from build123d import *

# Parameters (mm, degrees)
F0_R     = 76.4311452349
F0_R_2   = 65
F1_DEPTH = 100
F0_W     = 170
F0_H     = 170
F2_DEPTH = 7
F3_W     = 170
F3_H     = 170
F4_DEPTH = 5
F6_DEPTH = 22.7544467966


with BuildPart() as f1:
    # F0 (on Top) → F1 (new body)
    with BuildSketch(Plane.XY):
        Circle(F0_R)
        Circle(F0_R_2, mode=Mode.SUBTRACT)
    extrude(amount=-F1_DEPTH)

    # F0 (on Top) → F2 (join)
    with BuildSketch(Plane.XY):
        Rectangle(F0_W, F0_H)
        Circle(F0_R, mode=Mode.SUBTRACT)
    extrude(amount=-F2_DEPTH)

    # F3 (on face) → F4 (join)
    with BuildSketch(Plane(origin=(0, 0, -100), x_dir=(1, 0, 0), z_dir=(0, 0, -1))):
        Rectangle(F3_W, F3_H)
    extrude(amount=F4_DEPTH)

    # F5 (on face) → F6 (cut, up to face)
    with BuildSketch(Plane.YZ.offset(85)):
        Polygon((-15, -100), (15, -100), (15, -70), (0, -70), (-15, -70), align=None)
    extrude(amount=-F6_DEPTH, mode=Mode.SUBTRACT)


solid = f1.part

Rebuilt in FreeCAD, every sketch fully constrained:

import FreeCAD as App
import Part
import Sketcher
Q = App.Units.Quantity


def add_polygon(sketch, points):
    """Adds a closed chain of lines whose ends are joined by coincident constraints."""
    first, n = sketch.GeometryCount, len(points)
    for a, b in zip(points, points[1:] + points[:1]):
        sketch.addGeometry(Part.LineSegment(App.Vector(*a, 0), App.Vector(*b, 0)), False)
    for i in range(n):
        sketch.addConstraint(Sketcher.Constraint("Coincident", first + i, 2, first + (i + 1) % n, 1))

doc = App.newDocument("Part")
body = doc.addObject("PartDesign::Body", "Body")

# Sketch on XY plane
sketch1 = doc.addObject("Sketcher::SketchObject", "Sketch")
body.addObject(sketch1)
sketch1.AttachmentSupport = (doc.XY_Plane, [""])
sketch1.MapMode = "FlatFace"
sketch1.addGeometry([
    Part.Circle(App.Vector(0, 0, 0), App.Vector(0, 0, 1), 76.431145),
    Part.Circle(App.Vector(0, 0, 0), App.Vector(0, 0, 1), 65),
], False)
sketch1.addConstraint([
    Sketcher.Constraint("Coincident", 0, 3, -1, 1),
    Sketcher.Constraint("Coincident", 1, 3, -1, 1),
    Sketcher.Constraint("Diameter", 1, Q("130 mm")),
    Sketcher.Constraint("Diameter", 0, Q("152.86229 mm")),
])
pad1 = doc.addObject("PartDesign::Pad", "Pad")
body.addObject(pad1)
pad1.Profile = sketch1
pad1.Length = 100
pad1.Reversed = True

# Sketch on XY plane
sketch2 = doc.addObject("Sketcher::SketchObject", "Sketch001")
body.addObject(sketch2)
sketch2.AttachmentSupport = (doc.XY_Plane, [""])
sketch2.MapMode = "FlatFace"
add_polygon(sketch2, [(-85, 85), (-85, -85), (85, -85), (85, 85)])  # lines 0-3
sketch2.addGeometry(Part.Circle(App.Vector(0, 0, 0), App.Vector(0, 0, 1), 76.431145), False)  # 4
sketch2.addConstraint([
    Sketcher.Constraint("Vertical", 0),
    Sketcher.Constraint("Horizontal", 1),
    Sketcher.Constraint("Vertical", 2),
    Sketcher.Constraint("Horizontal", 3),
    Sketcher.Constraint("Coincident", 4, 3, -1, 1),
    Sketcher.Constraint("Symmetric", 0, 2, 2, 2, -1, 1),
    Sketcher.Constraint("Equal", 3, 0),
    Sketcher.Constraint("DistanceX", 1, 1, 1, 2, Q("170 mm")),
    Sketcher.Constraint("Diameter", 4, Q("152.86229 mm")),
])
pad2 = doc.addObject("PartDesign::Pad", "Pad001")
body.addObject(pad2)
pad2.Profile = sketch2
pad2.Length = 7
pad2.Reversed = True

# Sketch on XY plane
sketch3 = doc.addObject("Sketcher::SketchObject", "Sketch002")
body.addObject(sketch3)
sketch3.AttachmentSupport = (doc.XY_Plane, [""])
sketch3.MapMode = "FlatFace"
sketch3.AttachmentOffset = App.Placement(App.Vector(0, 0, -100), App.Rotation())
add_polygon(sketch3, [(-85, -85), (-85, 85), (85, 85), (85, -85)])  # lines 0-3
sketch3.addConstraint([
    Sketcher.Constraint("Vertical", 0),
    Sketcher.Constraint("Horizontal", 1),
    Sketcher.Constraint("Vertical", 2),
    Sketcher.Constraint("Horizontal", 3),
    Sketcher.Constraint("Symmetric", 0, 2, 2, 2, -1, 1),
    Sketcher.Constraint("Equal", 3, 0),
    Sketcher.Constraint("DistanceX", 1, 1, 1, 2, Q("170 mm")),
])
pad3 = doc.addObject("PartDesign::Pad", "Pad002")
body.addObject(pad3)
pad3.Profile = sketch3
pad3.Length = 5
pad3.Reversed = True

# Sketch on YZ plane
sketch4 = doc.addObject("Sketcher::SketchObject", "Sketch003")
body.addObject(sketch4)
sketch4.AttachmentSupport = (doc.YZ_Plane, [""])
sketch4.MapMode = "FlatFace"
sketch4.AttachmentOffset = App.Placement(App.Vector(0, 0, 85), App.Rotation())
add_polygon(sketch4, [(-15, -100), (15, -100), (15, -70), (-15, -70)])  # lines 0-3
sketch4.addConstraint([
    Sketcher.Constraint("Horizontal", 0),
    Sketcher.Constraint("Vertical", 1),
    Sketcher.Constraint("Horizontal", 2),
    Sketcher.Constraint("Vertical", 3),
    Sketcher.Constraint("Equal", 2, 1),
    Sketcher.Constraint("DistanceX", 0, 1, 0, 2, Q("30 mm")),
    Sketcher.Constraint("DistanceX", -1, 1, 0, 2, Q("15 mm")),
    Sketcher.Constraint("DistanceY", 0, 2, -1, 1, Q("100 mm")),
])
pocket1 = doc.addObject("PartDesign::Pocket", "Pocket")
body.addObject(pocket1)
pocket1.Profile = sketch4
pocket1.Length = 22.754447

doc.recompute()
